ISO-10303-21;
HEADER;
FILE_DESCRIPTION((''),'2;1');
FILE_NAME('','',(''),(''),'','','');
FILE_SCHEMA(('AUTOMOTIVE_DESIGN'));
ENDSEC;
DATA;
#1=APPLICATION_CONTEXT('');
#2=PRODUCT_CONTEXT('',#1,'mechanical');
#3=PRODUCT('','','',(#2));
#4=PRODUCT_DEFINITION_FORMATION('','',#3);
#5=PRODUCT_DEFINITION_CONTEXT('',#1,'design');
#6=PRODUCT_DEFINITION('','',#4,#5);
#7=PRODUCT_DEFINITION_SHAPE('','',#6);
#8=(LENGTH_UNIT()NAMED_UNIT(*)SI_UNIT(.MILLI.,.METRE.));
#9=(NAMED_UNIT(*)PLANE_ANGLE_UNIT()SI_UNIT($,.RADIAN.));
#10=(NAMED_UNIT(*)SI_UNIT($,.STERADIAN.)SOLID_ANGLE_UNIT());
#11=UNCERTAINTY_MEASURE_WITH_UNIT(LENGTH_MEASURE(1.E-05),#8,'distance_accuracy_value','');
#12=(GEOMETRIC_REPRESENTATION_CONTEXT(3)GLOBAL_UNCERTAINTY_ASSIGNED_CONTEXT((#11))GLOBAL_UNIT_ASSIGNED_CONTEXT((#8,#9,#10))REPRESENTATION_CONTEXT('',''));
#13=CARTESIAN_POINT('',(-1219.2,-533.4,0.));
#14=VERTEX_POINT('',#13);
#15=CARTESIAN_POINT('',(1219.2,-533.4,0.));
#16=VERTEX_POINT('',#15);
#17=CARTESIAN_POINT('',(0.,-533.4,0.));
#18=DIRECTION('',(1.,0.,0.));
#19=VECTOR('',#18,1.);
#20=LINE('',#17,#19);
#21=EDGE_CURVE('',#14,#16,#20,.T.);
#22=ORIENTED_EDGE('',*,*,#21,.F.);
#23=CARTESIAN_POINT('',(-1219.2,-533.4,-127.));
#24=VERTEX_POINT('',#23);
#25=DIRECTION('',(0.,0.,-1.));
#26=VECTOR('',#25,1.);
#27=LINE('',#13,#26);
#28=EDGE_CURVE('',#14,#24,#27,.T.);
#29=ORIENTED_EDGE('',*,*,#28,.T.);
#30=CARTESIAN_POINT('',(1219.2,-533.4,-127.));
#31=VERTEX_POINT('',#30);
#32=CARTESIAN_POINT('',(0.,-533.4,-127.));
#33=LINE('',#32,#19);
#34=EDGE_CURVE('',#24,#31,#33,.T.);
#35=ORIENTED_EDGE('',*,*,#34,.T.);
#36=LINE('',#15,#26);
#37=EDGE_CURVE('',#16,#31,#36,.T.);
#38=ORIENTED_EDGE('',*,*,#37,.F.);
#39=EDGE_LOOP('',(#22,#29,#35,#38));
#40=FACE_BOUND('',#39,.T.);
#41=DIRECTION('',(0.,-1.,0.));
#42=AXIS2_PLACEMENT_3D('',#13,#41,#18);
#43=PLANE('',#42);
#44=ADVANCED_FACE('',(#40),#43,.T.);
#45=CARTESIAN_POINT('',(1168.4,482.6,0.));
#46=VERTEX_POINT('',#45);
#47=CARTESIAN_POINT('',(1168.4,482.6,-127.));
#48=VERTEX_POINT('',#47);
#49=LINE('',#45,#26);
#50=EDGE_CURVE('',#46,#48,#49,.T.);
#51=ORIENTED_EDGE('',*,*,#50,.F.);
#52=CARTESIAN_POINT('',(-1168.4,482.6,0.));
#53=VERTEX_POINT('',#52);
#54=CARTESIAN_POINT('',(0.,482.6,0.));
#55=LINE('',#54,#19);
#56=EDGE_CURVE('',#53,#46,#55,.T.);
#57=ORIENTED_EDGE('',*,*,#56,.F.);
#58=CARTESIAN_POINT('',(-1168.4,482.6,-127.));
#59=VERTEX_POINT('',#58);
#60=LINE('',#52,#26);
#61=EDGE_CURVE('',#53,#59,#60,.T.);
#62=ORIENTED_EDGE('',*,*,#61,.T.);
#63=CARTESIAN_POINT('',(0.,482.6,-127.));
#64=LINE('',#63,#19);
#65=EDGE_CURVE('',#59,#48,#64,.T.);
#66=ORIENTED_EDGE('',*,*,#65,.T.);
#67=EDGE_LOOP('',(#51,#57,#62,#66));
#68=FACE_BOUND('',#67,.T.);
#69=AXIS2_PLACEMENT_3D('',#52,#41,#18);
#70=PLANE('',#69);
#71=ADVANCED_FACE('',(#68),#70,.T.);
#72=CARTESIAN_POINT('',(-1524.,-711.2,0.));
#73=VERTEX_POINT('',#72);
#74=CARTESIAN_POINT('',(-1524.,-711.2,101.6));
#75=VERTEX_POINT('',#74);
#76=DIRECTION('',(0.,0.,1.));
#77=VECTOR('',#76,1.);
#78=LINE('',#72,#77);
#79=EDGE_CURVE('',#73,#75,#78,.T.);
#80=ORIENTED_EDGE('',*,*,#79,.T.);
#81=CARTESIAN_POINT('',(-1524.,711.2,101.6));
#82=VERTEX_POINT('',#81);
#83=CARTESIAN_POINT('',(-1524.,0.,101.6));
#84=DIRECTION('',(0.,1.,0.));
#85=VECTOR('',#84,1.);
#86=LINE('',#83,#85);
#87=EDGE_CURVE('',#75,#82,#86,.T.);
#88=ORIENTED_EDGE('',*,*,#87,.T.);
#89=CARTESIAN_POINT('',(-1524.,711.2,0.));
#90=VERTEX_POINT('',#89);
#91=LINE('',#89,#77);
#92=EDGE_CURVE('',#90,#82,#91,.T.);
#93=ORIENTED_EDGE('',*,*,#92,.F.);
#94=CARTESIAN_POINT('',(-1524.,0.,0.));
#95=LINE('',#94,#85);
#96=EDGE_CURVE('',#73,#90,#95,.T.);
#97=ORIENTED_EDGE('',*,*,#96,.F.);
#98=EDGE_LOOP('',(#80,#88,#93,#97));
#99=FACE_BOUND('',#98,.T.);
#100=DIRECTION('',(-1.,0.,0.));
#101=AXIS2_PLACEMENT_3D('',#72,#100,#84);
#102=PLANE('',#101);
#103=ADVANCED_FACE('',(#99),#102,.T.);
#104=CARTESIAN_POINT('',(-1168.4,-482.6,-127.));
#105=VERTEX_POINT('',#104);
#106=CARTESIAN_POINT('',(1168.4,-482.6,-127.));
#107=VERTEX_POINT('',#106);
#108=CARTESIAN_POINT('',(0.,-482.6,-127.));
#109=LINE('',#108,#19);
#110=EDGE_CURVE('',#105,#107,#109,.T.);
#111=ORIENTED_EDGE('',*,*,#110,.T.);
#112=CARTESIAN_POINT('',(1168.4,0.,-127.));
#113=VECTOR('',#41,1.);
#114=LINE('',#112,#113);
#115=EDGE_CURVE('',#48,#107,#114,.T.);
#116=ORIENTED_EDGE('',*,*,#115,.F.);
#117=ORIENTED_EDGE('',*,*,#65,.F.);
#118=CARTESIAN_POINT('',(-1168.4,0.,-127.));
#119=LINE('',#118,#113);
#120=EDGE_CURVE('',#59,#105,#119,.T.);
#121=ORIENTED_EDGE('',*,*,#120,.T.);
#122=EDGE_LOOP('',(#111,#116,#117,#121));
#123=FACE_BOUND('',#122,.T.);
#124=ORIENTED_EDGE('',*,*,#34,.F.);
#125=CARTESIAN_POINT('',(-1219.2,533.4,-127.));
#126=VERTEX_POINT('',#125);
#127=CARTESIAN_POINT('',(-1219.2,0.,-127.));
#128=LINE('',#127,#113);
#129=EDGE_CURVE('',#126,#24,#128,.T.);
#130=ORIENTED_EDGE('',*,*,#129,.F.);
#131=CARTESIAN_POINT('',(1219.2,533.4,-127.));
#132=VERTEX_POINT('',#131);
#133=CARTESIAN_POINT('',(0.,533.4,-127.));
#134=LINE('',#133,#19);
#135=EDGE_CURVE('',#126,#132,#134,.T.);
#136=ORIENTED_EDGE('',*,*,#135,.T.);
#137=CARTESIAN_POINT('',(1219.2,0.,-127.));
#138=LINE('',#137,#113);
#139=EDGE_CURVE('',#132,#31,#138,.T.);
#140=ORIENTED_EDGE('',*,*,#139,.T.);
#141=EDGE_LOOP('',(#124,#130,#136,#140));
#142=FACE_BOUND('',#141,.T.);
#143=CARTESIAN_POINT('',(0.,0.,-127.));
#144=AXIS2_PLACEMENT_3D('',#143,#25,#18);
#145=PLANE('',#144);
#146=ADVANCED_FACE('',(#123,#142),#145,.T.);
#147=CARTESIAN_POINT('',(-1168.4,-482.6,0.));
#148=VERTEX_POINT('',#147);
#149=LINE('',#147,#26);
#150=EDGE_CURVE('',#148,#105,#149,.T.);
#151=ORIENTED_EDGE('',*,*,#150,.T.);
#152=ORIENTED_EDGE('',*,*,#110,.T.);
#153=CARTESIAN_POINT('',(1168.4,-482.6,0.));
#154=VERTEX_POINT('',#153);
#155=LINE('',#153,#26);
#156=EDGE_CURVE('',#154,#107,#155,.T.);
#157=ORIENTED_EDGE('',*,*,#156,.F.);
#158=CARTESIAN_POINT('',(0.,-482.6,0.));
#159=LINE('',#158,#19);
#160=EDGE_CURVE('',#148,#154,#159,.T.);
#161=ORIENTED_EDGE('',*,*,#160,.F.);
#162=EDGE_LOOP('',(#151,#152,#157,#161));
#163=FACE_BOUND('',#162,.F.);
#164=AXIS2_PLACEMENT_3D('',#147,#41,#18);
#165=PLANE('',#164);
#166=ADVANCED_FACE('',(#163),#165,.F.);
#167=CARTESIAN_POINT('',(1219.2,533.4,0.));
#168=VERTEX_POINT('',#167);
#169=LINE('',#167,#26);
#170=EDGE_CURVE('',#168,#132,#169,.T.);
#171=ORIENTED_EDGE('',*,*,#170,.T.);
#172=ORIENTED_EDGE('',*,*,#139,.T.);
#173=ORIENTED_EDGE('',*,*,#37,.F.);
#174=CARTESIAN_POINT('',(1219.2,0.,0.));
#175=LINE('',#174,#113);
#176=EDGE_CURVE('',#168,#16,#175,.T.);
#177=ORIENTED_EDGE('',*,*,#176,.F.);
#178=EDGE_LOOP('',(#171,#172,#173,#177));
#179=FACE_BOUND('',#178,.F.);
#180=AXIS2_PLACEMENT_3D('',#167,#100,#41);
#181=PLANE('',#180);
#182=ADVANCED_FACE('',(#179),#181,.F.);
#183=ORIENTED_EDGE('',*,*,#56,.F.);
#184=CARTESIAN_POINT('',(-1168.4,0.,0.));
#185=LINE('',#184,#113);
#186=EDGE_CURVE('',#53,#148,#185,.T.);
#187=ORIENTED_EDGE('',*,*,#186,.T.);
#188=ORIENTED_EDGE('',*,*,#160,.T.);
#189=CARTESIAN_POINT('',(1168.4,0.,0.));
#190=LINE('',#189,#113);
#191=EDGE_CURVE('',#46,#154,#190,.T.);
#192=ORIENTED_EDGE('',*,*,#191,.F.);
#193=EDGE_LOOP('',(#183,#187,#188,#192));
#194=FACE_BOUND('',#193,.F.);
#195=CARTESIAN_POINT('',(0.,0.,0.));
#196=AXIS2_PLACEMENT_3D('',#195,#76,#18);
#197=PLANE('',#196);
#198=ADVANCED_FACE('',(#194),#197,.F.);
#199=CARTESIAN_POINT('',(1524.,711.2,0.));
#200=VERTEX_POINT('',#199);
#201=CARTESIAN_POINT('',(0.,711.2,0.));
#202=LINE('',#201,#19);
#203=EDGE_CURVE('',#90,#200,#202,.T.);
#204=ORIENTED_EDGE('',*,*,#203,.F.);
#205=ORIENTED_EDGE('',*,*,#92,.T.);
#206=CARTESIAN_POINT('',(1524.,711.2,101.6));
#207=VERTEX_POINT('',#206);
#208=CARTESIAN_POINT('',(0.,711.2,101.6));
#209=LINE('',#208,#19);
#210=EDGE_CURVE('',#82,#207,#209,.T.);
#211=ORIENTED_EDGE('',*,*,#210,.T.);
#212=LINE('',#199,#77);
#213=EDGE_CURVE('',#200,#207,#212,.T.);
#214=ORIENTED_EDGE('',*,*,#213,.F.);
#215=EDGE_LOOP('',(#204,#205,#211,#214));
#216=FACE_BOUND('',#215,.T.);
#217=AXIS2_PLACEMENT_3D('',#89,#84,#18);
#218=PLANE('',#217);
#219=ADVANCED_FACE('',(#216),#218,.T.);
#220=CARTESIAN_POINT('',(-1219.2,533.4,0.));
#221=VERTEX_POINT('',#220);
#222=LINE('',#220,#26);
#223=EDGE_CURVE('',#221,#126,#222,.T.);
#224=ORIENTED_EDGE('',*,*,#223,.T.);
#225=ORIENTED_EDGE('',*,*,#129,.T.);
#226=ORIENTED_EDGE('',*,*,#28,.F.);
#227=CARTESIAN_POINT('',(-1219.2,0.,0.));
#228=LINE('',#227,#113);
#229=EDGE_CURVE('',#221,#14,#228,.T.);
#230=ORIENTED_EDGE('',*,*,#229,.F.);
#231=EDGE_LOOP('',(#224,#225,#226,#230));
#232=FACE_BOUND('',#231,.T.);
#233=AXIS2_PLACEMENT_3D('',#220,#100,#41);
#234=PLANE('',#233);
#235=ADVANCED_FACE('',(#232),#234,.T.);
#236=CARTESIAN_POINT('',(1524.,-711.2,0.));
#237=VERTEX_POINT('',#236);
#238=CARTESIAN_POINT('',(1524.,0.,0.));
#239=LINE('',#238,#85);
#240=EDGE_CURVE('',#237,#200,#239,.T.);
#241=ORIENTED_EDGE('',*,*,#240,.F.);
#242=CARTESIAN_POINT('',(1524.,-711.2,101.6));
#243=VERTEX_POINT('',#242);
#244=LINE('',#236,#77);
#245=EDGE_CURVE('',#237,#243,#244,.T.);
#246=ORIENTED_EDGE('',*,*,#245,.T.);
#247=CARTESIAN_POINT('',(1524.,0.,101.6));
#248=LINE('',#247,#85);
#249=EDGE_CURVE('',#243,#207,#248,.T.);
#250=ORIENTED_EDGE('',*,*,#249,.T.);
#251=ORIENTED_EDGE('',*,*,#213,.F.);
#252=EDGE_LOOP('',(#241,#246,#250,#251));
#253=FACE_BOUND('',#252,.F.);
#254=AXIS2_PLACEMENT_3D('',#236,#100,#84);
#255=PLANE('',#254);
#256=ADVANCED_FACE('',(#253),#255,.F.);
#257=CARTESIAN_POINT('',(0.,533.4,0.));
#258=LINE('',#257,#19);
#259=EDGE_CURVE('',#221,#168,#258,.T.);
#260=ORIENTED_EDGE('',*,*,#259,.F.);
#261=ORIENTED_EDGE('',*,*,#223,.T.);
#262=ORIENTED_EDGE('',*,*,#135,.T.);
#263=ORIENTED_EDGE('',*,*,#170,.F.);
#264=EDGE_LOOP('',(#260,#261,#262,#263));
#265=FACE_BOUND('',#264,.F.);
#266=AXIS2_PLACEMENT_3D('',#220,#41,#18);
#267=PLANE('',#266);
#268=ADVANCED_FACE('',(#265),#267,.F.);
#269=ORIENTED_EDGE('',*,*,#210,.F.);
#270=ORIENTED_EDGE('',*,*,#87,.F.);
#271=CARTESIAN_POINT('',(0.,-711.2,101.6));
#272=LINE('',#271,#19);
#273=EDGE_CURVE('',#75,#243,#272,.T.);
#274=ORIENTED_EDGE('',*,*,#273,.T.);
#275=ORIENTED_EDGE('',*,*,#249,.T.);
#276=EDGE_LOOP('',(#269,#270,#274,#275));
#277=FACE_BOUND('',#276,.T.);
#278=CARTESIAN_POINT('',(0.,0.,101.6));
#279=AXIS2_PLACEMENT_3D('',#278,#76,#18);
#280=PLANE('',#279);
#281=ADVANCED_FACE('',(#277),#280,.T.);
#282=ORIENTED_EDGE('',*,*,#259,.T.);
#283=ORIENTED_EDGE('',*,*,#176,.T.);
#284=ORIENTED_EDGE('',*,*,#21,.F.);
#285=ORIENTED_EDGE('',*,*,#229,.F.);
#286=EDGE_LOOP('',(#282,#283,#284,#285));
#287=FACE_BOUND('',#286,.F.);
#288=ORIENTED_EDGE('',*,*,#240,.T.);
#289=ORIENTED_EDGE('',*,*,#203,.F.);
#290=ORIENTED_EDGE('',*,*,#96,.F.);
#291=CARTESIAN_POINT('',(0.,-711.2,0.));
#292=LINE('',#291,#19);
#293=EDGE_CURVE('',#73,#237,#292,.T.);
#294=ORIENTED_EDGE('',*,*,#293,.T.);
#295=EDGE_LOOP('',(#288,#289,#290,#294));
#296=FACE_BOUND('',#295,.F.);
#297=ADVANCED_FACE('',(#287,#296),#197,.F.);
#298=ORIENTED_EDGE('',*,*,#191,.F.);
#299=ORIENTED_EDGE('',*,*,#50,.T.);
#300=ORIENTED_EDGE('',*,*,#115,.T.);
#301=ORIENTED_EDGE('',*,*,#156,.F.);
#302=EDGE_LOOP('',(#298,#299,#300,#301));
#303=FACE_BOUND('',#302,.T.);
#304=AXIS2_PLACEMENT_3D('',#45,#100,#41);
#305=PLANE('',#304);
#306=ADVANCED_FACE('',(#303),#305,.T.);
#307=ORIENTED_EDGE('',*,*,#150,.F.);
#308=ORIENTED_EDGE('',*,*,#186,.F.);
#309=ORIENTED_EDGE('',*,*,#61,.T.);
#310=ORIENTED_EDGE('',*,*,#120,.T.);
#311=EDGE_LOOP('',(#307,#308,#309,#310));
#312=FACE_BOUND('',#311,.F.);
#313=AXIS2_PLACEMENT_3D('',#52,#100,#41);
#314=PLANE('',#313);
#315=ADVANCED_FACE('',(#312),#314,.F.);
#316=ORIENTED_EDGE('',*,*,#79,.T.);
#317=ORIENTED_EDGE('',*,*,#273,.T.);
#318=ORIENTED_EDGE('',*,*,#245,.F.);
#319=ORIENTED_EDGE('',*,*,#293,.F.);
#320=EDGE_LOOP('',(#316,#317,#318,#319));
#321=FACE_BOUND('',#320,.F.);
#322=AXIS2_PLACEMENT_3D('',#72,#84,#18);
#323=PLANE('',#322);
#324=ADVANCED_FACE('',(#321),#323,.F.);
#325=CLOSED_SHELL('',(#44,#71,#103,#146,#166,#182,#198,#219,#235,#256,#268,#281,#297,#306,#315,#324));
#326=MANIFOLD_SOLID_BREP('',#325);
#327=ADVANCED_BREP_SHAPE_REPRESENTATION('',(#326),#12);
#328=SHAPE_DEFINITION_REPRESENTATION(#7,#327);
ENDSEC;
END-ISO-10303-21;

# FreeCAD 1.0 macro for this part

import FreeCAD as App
import Part
import Sketcher
Q = App.Units.Quantity


def add_polygon(sketch, points):
    """Adds a closed chain of lines whose ends are joined by coincident constraints."""
    first, n = sketch.GeometryCount, len(points)
    for a, b in zip(points, points[1:] + points[:1]):
        sketch.addGeometry(Part.LineSegment(App.Vector(*a, 0), App.Vector(*b, 0)), False)
    for i in range(n):
        sketch.addConstraint(Sketcher.Constraint("Coincident", first + i, 2, first + (i + 1) % n, 1))

doc = App.newDocument("Part")
body = doc.addObject("PartDesign::Body", "Body")

# Sketch on XY plane
sketch1 = body.newObject("Sketcher::SketchObject", "Sketch")
sketch1.AttachmentSupport = (doc.getObject("XY_Plane"), [""])
sketch1.MapMode = "FlatFace"
add_polygon(sketch1, [(-1524, 711), (-1524, -711), (1524, -711), (1524, 711)])  # lines 0-3
sketch1.addConstraint([
    Sketcher.Constraint("Vertical", 0),
    Sketcher.Constraint("Horizontal", 1),
    Sketcher.Constraint("Vertical", 2),
    Sketcher.Constraint("Horizontal", 3),
    Sketcher.Constraint("Symmetric", 0, 2, 2, 2, -1, 1),
    Sketcher.Constraint("DistanceX", 1, 1, 1, 2, Q("120 in")),
    Sketcher.Constraint("DistanceY", 0, 2, 0, 1, Q("56 in")),
])
pad1 = body.newObject("PartDesign::Pad", "Pad")
pad1.Profile = sketch1
pad1.Length = Q("4 in")

# Sketch on XY plane
sketch2 = body.newObject("Sketcher::SketchObject", "Sketch001")
sketch2.AttachmentSupport = (doc.getObject("XY_Plane"), [""])
sketch2.MapMode = "FlatFace"
add_polygon(sketch2, [(-1219, -533), (-1219, 533), (1219, 533), (1219, -533)])  # lines 0-3
add_polygon(sketch2, [(1168, 483), (-1168, 483), (-1168, -483), (1168, -483)])  # lines 4-7
sketch2.addConstraint([
    Sketcher.Constraint("Vertical", 0),
    Sketcher.Constraint("Horizontal", 1),
    Sketcher.Constraint("Vertical", 2),
    Sketcher.Constraint("Horizontal", 3),
    Sketcher.Constraint("Horizontal", 4),
    Sketcher.Constraint("Vertical", 5),
    Sketcher.Constraint("Horizontal", 6),
    Sketcher.Constraint("Vertical", 7),
    Sketcher.Constraint("Symmetric", 0, 2, 2, 2, -1, 1),
    Sketcher.Constraint("Symmetric", 4, 2, 6, 2, -1, 1),
    Sketcher.Constraint("DistanceX", 1, 1, 1, 2, Q("96 in")),
    Sketcher.Constraint("DistanceX", 4, 2, 4, 1, Q("92 in")),
    Sketcher.Constraint("DistanceY", 0, 1, 0, 2, Q("42 in")),
    Sketcher.Constraint("DistanceY", 5, 2, 5, 1, Q("38 in")),
])
pad2 = body.newObject("PartDesign::Pad", "Pad001")
pad2.Profile = sketch2
pad2.Length = Q("5 in")
pad2.Reversed = True

doc.recompute()
